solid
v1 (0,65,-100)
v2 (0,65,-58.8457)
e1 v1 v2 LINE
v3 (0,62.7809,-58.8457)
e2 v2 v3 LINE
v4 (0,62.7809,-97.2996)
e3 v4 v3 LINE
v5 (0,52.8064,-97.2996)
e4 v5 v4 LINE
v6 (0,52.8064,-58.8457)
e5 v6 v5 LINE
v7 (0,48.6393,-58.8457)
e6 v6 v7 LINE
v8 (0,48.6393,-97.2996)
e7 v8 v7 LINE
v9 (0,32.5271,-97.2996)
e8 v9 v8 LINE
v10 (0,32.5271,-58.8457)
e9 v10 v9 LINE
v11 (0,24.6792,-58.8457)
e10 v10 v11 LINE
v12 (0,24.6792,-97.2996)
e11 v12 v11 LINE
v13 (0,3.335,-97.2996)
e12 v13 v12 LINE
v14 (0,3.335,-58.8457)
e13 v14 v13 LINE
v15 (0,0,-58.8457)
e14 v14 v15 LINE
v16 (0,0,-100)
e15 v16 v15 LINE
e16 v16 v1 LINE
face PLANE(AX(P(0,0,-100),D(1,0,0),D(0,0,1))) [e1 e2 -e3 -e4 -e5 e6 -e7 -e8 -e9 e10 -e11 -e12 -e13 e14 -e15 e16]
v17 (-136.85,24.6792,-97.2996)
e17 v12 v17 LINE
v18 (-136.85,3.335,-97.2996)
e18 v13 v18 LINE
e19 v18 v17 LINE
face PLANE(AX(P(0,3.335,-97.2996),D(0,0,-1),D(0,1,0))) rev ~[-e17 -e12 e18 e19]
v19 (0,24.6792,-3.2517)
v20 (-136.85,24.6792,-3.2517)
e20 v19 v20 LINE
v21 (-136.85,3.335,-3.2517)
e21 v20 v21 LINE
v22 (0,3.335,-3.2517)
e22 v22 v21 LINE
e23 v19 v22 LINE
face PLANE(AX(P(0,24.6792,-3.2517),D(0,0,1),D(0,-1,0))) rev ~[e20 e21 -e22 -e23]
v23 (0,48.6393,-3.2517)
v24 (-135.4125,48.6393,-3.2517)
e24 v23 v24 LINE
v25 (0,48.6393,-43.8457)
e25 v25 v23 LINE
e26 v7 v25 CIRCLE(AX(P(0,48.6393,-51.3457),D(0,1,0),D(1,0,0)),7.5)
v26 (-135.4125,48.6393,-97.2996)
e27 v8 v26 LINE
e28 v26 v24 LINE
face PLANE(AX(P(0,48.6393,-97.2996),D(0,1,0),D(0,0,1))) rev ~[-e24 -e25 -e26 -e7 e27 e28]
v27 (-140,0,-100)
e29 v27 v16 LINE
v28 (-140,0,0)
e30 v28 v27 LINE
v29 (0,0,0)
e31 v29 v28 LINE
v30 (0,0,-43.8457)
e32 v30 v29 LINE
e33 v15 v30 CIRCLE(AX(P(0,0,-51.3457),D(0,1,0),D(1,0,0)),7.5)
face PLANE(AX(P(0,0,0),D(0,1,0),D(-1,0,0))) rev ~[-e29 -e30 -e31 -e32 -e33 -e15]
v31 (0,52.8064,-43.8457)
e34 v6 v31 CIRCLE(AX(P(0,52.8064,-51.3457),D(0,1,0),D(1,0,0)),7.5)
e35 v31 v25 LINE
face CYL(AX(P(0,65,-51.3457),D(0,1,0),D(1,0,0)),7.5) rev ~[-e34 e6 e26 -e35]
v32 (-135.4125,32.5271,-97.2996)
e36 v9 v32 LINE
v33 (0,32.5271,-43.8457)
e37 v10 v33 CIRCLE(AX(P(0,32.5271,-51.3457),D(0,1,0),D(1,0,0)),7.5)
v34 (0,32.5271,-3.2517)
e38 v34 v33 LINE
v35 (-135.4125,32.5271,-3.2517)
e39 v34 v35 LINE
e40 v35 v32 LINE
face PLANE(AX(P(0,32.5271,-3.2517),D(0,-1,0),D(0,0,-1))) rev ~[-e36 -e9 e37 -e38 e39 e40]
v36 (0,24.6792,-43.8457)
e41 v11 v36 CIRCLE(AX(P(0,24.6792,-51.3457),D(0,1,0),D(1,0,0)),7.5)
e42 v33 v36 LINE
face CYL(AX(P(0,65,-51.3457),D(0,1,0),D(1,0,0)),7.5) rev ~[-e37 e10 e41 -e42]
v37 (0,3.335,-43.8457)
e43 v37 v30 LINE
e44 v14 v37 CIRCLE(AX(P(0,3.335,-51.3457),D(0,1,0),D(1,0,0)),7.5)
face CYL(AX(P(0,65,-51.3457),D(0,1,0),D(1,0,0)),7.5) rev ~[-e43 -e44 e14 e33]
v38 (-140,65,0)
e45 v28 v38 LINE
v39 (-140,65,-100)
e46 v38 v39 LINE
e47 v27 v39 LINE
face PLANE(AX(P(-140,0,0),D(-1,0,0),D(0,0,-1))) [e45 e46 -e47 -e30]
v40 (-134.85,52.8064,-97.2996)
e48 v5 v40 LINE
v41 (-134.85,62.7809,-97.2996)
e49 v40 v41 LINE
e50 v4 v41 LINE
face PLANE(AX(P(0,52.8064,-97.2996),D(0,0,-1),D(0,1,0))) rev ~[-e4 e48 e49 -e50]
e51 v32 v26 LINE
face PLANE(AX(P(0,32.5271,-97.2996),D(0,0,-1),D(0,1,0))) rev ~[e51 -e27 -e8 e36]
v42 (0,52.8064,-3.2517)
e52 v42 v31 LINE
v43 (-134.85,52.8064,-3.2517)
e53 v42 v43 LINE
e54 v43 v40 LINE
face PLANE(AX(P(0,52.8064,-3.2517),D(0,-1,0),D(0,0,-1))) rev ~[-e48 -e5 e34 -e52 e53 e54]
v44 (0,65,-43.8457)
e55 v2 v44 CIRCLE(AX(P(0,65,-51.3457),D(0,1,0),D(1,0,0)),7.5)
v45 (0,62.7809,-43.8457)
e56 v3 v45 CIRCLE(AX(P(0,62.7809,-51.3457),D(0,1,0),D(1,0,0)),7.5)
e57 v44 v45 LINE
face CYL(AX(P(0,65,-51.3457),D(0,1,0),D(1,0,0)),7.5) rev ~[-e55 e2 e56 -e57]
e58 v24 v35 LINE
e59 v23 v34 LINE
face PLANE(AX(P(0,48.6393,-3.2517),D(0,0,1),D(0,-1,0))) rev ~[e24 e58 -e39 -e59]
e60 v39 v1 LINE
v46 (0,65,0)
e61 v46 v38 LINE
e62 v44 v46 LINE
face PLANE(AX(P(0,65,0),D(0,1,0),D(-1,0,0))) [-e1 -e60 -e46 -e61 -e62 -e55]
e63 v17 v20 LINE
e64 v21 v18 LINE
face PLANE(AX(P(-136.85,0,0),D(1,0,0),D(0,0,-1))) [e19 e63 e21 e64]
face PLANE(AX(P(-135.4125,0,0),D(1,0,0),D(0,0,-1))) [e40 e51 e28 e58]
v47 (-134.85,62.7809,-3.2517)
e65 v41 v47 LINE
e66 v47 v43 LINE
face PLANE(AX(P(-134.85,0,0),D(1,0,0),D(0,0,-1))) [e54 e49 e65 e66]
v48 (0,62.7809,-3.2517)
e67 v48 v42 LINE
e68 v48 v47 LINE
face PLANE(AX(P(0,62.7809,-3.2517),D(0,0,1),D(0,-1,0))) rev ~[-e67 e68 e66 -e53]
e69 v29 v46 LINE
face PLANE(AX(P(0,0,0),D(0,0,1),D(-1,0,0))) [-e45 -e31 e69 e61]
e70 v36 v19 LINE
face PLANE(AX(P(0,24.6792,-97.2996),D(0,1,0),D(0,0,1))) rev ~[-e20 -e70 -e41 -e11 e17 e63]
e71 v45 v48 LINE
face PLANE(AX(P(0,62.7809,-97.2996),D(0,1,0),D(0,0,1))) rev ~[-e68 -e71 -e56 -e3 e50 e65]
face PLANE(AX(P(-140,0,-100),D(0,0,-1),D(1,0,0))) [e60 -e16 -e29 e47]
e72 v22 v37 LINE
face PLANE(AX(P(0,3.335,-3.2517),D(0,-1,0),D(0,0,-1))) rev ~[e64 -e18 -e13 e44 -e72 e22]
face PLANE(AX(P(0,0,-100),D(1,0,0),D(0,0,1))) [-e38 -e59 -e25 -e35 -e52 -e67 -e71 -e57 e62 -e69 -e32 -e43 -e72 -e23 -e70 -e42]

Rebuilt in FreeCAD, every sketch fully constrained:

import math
import FreeCAD as App
import Part
import Sketcher


def add_polygon(sketch, points):
    """Adds a closed chain of lines whose ends are joined by coincident constraints."""
    first, n = sketch.GeometryCount, len(points)
    for a, b in zip(points, points[1:] + points[:1]):
        sketch.addGeometry(Part.LineSegment(App.Vector(*a, 0), App.Vector(*b, 0)), False)
    for i in range(n):
        sketch.addConstraint(Sketcher.Constraint("Coincident", first + i, 2, first + (i + 1) % n, 1))

doc = App.newDocument("Part")
body = doc.addObject("PartDesign::Body", "Body")

# Sketch on XZ plane
sketch1 = body.newObject("Sketcher::SketchObject", "Sketch")
sketch1.AttachmentSupport = (doc.getObject("XZ_Plane"), [""])
sketch1.MapMode = "FlatFace"
add_polygon(sketch1, [(-140, 0), (0, 0), (0, -100), (-140, -100)])  # lines 0-3
sketch1.addConstraint([
    Sketcher.Constraint("Horizontal", 0),
    Sketcher.Constraint("Vertical", 1),
    Sketcher.Constraint("Horizontal", 2),
    Sketcher.Constraint("Vertical", 3),
    Sketcher.Constraint("Coincident", 0, 2, -1, 1),
    Sketcher.Constraint("DistanceX", 0, 1, 0, 2, 140.0),
    Sketcher.Constraint("DistanceY", 1, 2, 1, 1, 100.0),
])
pad1 = body.newObject("PartDesign::Pad", "Pad")
pad1.Profile = sketch1
pad1.Length = 65
pad1.Reversed = True

# Sketch on YZ plane
sketch2 = body.newObject("Sketcher::SketchObject", "Sketch001")
sketch2.AttachmentSupport = (doc.getObject("YZ_Plane"), [""])
sketch2.MapMode = "FlatFace"
add_polygon(sketch2, [(25, -3), (3, -3), (3, -97), (25, -97)])  # lines 0-3
sketch2.addConstraint([
    Sketcher.Constraint("Horizontal", 0),
    Sketcher.Constraint("Vertical", 1),
    Sketcher.Constraint("Horizontal", 2),
    Sketcher.Constraint("Vertical", 3),
    Sketcher.Constraint("DistanceY", 1, 2, 1, 1, 94.048),
    Sketcher.Constraint("DistanceX", 0, 2, 0, 1, 21.3442),
    Sketcher.Constraint("DistanceX", -1, 1, 0, 2, 3.335),
    Sketcher.Constraint("DistanceY", 0, 2, -1, 1, 3.2517),
])
pocket1 = body.newObject("PartDesign::Pocket", "Pocket")
pocket1.Profile = sketch2
pocket1.Length = 136.85

# Sketch on YZ plane
sketch3 = body.newObject("Sketcher::SketchObject", "Sketch002")
sketch3.AttachmentSupport = (doc.getObject("YZ_Plane"), [""])
sketch3.MapMode = "FlatFace"
add_polygon(sketch3, [(49, -3), (33, -3), (33, -97), (49, -97)])  # lines 0-3
sketch3.addConstraint([
    Sketcher.Constraint("Horizontal", 0),
    Sketcher.Constraint("Vertical", 1),
    Sketcher.Constraint("Horizontal", 2),
    Sketcher.Constraint("Vertical", 3),
    Sketcher.Constraint("DistanceY", 1, 2, 1, 1, 94.048),
    Sketcher.Constraint("DistanceX", 0, 2, 0, 1, 16.1122),
    Sketcher.Constraint("DistanceX", -1, 1, 0, 2, 32.527),
    Sketcher.Constraint("DistanceY", 0, 2, -1, 1, 3.2517),
])
pocket2 = body.newObject("PartDesign::Pocket", "Pocket001")
pocket2.Profile = sketch3
pocket2.Length = 135.4125

# Sketch on YZ plane
sketch4 = body.newObject("Sketcher::SketchObject", "Sketch003")
sketch4.AttachmentSupport = (doc.getObject("YZ_Plane"), [""])
sketch4.MapMode = "FlatFace"
add_polygon(sketch4, [(63, -3), (53, -3), (53, -97), (63, -97)])  # lines 0-3
sketch4.addConstraint([
    Sketcher.Constraint("Horizontal", 0),
    Sketcher.Constraint("Vertical", 1),
    Sketcher.Constraint("Horizontal", 2),
    Sketcher.Constraint("Vertical", 3),
    Sketcher.Constraint("DistanceY", 1, 2, 1, 1, 94.048),
    Sketcher.Constraint("DistanceX", 0, 2, 0, 1, 9.9745),
    Sketcher.Constraint("DistanceX", -1, 1, 2, 2, 62.781),
    Sketcher.Constraint("DistanceY", 0, 2, -1, 1, 3.2517),
])
pocket3 = body.newObject("PartDesign::Pocket", "Pocket002")
pocket3.Profile = sketch4
pocket3.Length = 134.85

# Sketch on XZ plane
sketch5 = body.newObject("Sketcher::SketchObject", "Sketch004")
sketch5.AttachmentSupport = (doc.getObject("XZ_Plane"), [""])
sketch5.MapMode = "FlatFace"
sketch5.AttachmentOffset = App.Placement(App.Vector(0, 0, -65), App.Rotation())
sketch5.addGeometry([
    Part.ArcOfCircle(Part.Circle(App.Vector(0, -51, 0), App.Vector(0, 0, 1), 8), math.radians(90), math.radians(270)),
    Part.LineSegment(App.Vector(0, -44, 0), App.Vector(0, -59, 0)),
], False)
sketch5.addConstraint([
    Sketcher.Constraint("Coincident", 0, 1, 1, 1),
    Sketcher.Constraint("Coincident", 1, 2, 0, 2),
    Sketcher.Constraint("Vertical", 1),
    Sketcher.Constraint("PointOnObject", 0, 3, -2),
    Sketcher.Constraint("PointOnObject", 0, 1, -2),
    Sketcher.Constraint("Radius", 0, 7.5),
    Sketcher.Constraint("DistanceY", 0, 3, -1, 1, 51.3457),
])
pocket4 = body.newObject("PartDesign::Pocket", "Pocket003")
pocket4.Profile = sketch5
pocket4.Length = 65
pocket4.Reversed = True

doc.recompute()
